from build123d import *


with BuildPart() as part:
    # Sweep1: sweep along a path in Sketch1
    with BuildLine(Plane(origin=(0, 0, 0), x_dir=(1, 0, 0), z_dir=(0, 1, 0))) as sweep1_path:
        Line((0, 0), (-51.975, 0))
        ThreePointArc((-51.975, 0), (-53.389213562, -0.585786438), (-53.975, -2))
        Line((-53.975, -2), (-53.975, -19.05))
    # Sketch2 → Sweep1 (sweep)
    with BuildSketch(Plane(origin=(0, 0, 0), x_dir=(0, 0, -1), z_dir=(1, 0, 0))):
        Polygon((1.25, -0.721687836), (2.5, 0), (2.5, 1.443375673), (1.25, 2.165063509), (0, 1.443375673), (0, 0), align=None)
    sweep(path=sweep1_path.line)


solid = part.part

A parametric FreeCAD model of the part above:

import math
import FreeCAD as App
import Part
import Sketcher

V = App.Vector
Q = App.Units.Quantity

doc = App.newDocument("Part")
body = doc.addObject("PartDesign::Body", "Body")

sketch1 = doc.addObject("Sketcher::SketchObject", "Sketch")
body.addObject(sketch1)
sketch1.AttachmentSupport = (doc.YZ_Plane, [""])
sketch1.MapMode = "FlatFace"
sketch1.addGeometry([
    Part.LineSegment(V(-0.721688, -1.25, 0), V(0, -2.5, 0)),
    Part.LineSegment(V(0, -2.5, 0), V(1.443376, -2.5, 0)),
    Part.LineSegment(V(1.443376, -2.5, 0), V(2.165064, -1.25, 0)),
    Part.LineSegment(V(2.165064, -1.25, 0), V(1.443376, 0, 0)),
    Part.LineSegment(V(1.443376, 0, 0), V(0, 0, 0)),
    Part.LineSegment(V(0, 0, 0), V(-0.721688, -1.25, 0)),
], False)
sketch1.addConstraint([
    Sketcher.Constraint("Coincident", 0, 2, 1, 1),
    Sketcher.Constraint("Coincident", 1, 2, 2, 1),
    Sketcher.Constraint("Coincident", 2, 2, 3, 1),
    Sketcher.Constraint("Coincident", 3, 2, 4, 1),
    Sketcher.Constraint("Coincident", 4, 2, 5, 1),
    Sketcher.Constraint("Coincident", 5, 2, 0, 1),
    Sketcher.Constraint("Horizontal", 1),
    Sketcher.Constraint("Horizontal", 4),
    Sketcher.Constraint("Coincident", 4, 2, -1, 1),
    Sketcher.Constraint("PointOnObject", 0, 2, -2),
    Sketcher.Constraint("Parallel", 0, 3),
    Sketcher.Constraint("Parallel", 2, 5),
    Sketcher.Constraint("Horizontal", 2, 2, 5, 2),
    Sketcher.Constraint("Vertical", 1, 2, 3, 2),
    Sketcher.Constraint("Angle", 0, Q("-60 deg")),
    Sketcher.Constraint("DistanceY", 0, 2, -1, 1, 2.5),
    Sketcher.Constraint("DistanceX", 1, 1, 1, 2, 1.443376),
])

sketch2 = doc.addObject("Sketcher::SketchObject", "Sketch001")
body.addObject(sketch2)
sketch2.AttachmentSupport = (doc.XZ_Plane, [""])
sketch2.MapMode = "FlatFace"
sketch2.addGeometry([
    Part.LineSegment(V(0, 0, 0), V(-51.975, 0, 0)),
    Part.ArcOfCircle(Part.Circle(V(-51.975, 2, 0), V(0, 0, 1), 2), math.radians(-180), math.radians(-90)),
    Part.LineSegment(V(-53.975, 2, 0), V(-53.975, 19.05, 0)),
], False)
sketch2.addConstraint([
    Sketcher.Constraint("Tangent", 0, 2, 1, 2),
    Sketcher.Constraint("Tangent", 1, 1, 2, 1),
    Sketcher.Constraint("Horizontal", 0),
    Sketcher.Constraint("Vertical", 2),
    Sketcher.Constraint("Coincident", 0, 1, -1, 1),
    Sketcher.Constraint("Radius", 1, 2.0),
    Sketcher.Constraint("DistanceY", 2, 1, 2, 2, 17.05),
    Sketcher.Constraint("DistanceX", 0, 2, 0, 1, 51.975),
])
doc.recompute()

additivepipe = doc.addObject("PartDesign::AdditivePipe", "AdditivePipe")
body.addObject(additivepipe)
additivepipe.Profile = sketch1
additivepipe.Spine = (sketch2, ["Edge1", "Edge2", "Edge3"])

doc.recompute()
